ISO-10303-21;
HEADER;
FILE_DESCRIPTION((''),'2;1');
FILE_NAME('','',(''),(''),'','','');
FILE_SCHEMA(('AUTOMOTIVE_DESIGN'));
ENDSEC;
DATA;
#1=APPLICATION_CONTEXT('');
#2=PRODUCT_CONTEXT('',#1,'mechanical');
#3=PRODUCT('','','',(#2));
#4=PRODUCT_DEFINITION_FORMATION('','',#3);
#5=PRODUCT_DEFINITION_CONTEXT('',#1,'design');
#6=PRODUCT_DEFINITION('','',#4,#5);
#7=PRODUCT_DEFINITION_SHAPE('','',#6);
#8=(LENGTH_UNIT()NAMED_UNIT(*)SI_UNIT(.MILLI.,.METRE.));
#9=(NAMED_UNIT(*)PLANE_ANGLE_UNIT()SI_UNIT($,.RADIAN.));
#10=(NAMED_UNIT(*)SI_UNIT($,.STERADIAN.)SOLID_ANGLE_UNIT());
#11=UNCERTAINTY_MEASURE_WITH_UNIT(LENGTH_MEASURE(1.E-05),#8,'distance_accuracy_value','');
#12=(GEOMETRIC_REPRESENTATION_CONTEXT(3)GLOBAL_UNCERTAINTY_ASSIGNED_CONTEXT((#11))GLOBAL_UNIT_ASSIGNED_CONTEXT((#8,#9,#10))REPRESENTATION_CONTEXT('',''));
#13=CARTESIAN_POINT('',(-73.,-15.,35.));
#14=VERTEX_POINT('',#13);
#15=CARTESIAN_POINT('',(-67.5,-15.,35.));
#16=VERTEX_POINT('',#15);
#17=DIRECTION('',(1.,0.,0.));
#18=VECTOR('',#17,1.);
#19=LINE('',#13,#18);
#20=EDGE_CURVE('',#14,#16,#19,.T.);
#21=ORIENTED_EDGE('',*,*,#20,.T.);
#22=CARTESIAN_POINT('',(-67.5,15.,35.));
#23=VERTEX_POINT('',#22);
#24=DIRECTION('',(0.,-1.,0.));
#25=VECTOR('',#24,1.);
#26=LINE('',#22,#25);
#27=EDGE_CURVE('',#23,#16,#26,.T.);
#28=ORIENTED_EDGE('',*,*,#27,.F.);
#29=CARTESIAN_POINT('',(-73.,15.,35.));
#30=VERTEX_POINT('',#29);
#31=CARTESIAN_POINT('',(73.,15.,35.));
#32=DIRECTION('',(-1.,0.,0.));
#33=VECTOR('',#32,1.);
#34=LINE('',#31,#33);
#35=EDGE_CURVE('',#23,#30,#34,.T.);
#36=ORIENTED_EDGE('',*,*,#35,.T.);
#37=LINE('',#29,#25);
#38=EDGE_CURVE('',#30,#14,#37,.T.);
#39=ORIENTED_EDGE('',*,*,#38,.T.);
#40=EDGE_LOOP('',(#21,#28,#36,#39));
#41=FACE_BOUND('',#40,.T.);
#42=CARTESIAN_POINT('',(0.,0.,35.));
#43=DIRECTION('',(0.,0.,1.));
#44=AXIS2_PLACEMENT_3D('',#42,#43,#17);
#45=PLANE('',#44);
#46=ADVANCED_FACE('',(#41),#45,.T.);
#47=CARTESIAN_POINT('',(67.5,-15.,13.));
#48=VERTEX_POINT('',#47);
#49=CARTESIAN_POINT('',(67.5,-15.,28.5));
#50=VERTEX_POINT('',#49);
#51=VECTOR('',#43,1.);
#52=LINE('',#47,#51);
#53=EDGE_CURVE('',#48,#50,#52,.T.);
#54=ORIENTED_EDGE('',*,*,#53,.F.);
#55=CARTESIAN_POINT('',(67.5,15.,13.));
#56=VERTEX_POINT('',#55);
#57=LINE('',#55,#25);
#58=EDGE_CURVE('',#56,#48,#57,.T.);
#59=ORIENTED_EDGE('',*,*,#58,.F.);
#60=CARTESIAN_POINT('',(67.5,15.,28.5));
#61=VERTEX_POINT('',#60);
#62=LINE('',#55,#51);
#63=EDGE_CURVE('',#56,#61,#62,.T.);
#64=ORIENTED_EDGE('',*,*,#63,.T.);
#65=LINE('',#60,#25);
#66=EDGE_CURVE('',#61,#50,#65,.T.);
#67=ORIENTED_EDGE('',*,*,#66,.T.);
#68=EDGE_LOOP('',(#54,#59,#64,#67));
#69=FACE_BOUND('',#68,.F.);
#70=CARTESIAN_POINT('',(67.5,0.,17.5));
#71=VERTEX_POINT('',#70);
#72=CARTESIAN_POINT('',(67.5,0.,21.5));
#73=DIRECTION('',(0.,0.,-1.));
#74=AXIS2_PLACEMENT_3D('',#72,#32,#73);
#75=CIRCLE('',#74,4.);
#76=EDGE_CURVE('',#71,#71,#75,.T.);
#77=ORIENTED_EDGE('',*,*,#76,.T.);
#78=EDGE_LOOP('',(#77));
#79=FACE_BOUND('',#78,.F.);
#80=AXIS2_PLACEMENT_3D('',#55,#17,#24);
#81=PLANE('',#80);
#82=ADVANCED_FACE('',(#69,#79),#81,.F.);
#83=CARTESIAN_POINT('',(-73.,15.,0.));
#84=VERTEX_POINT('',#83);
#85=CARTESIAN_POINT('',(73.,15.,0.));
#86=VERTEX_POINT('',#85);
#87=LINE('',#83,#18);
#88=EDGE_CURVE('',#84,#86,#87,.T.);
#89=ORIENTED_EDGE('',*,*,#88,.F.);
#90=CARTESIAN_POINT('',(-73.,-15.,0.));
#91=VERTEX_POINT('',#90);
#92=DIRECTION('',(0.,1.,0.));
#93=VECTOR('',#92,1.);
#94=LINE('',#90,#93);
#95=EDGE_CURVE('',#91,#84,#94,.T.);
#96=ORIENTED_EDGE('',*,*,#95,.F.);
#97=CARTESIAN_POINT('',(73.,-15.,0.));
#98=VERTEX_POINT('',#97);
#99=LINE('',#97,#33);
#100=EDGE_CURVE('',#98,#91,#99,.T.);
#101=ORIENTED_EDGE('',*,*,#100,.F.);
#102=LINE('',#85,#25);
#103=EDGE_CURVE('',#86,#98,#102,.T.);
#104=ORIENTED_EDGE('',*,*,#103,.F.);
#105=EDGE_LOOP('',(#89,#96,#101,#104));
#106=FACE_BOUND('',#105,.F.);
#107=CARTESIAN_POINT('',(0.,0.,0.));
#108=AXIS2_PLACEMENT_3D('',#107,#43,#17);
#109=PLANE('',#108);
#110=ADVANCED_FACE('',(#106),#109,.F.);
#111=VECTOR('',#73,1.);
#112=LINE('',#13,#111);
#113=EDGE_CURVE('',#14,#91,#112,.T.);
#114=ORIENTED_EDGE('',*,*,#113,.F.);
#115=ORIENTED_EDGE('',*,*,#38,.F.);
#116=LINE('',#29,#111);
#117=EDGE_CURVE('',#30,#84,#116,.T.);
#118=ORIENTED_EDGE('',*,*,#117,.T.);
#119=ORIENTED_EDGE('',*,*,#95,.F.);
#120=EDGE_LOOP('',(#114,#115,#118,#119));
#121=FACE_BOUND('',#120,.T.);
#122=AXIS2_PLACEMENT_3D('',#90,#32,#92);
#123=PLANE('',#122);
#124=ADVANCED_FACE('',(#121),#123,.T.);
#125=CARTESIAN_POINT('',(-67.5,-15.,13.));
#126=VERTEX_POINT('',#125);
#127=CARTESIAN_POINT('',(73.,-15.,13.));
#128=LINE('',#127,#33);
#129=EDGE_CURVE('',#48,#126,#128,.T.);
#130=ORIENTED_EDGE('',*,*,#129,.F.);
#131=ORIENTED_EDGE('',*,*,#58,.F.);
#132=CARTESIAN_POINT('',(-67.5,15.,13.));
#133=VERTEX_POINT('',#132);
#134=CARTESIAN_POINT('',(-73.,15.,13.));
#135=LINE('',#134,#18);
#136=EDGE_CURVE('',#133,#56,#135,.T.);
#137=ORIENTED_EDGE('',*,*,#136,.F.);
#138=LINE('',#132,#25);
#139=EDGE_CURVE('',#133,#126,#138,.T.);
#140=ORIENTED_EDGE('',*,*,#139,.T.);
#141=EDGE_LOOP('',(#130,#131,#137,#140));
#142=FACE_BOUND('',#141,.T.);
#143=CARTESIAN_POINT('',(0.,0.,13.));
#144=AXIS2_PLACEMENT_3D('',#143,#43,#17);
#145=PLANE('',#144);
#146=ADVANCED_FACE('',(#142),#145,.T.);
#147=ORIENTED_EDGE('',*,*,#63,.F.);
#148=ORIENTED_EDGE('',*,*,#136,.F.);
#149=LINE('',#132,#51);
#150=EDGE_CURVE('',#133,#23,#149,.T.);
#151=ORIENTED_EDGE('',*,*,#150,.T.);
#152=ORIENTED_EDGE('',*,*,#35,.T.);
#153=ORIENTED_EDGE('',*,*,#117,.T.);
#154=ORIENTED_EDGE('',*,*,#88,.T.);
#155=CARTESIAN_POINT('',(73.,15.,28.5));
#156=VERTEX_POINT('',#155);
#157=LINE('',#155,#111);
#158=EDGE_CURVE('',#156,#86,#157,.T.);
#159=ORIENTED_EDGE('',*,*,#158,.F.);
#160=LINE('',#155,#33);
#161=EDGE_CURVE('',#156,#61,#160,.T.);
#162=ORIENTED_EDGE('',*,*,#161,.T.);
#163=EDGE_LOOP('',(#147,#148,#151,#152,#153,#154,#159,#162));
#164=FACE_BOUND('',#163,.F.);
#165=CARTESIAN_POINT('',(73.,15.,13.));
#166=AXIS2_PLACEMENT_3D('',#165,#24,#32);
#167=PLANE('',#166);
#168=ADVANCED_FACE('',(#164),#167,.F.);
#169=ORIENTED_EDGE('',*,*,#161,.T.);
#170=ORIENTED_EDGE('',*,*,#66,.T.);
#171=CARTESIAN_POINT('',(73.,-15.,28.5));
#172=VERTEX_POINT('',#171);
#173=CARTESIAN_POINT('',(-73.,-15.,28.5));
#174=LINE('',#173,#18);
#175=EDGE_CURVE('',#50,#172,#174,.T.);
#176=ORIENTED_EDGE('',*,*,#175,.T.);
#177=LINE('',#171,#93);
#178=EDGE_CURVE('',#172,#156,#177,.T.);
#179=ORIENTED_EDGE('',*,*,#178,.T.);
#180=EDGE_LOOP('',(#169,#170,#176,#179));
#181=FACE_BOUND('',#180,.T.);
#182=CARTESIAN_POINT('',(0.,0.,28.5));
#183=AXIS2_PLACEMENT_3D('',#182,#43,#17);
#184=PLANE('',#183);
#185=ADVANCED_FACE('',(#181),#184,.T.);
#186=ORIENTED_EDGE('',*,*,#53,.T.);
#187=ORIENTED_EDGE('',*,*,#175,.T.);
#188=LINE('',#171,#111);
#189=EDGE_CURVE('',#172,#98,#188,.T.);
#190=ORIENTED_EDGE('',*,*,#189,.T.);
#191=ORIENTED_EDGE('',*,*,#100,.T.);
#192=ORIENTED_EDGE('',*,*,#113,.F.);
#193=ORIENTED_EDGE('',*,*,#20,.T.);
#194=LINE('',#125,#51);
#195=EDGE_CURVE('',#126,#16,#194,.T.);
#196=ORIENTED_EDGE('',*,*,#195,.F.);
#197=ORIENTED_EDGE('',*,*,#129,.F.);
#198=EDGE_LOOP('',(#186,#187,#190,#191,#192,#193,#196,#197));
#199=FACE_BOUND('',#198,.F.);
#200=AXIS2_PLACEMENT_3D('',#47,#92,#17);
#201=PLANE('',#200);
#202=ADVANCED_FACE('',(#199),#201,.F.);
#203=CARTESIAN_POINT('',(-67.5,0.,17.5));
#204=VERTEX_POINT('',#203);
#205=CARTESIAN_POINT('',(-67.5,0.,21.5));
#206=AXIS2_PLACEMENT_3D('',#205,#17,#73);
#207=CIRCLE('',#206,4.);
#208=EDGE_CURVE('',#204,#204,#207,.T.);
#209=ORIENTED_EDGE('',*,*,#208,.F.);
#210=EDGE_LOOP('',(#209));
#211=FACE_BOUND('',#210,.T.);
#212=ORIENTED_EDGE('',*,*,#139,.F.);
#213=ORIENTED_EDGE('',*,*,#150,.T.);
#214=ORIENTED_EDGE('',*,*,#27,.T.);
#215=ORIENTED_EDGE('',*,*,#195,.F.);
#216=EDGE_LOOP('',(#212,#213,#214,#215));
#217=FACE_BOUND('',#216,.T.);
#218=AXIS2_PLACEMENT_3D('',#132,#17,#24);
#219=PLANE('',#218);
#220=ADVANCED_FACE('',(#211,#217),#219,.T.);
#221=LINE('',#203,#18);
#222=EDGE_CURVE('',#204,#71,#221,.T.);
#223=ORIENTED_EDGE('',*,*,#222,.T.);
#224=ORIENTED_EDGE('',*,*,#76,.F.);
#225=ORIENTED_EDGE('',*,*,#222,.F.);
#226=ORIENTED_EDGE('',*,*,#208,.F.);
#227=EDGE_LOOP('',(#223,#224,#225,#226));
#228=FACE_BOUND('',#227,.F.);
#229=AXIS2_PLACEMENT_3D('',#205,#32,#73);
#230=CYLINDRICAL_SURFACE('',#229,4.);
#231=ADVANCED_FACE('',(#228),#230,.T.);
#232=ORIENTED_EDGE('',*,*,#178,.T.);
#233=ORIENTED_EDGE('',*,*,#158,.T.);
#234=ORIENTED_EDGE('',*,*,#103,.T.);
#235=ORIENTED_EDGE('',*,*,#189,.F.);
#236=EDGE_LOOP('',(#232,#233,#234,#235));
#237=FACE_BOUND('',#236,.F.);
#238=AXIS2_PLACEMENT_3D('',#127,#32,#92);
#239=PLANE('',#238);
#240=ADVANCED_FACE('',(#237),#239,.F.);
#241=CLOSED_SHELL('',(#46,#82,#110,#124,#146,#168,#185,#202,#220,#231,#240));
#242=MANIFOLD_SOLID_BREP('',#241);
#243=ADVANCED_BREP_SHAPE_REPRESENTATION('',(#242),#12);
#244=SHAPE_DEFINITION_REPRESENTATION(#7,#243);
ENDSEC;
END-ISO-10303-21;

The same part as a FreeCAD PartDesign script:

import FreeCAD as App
import Part
import Sketcher

V = App.Vector

doc = App.newDocument("Part")
body = doc.addObject("PartDesign::Body", "Body")

# Sketch on XY plane
sketch1 = body.newObject("Sketcher::SketchObject", "Sketch")
sketch1.AttachmentSupport = (doc.getObject("XY_Plane"), [""])
sketch1.MapMode = "FlatFace"
sketch1.addGeometry(Part.LineSegment(V(-73, -15, 0), V(73, -15, 0)), False)
sketch1.addGeometry(Part.LineSegment(V(73, -15, 0), V(73, 15, 0)), False)
sketch1.addGeometry(Part.LineSegment(V(73, 15, 0), V(-73, 15, 0)), False)
sketch1.addGeometry(Part.LineSegment(V(-73, 15, 0), V(-73, -15, 0)), False)
sketch1.addConstraint(Sketcher.Constraint("Coincident", 0, 2, 1, 1))
sketch1.addConstraint(Sketcher.Constraint("Coincident", 1, 2, 2, 1))
sketch1.addConstraint(Sketcher.Constraint("Coincident", 2, 2, 3, 1))
sketch1.addConstraint(Sketcher.Constraint("Coincident", 3, 2, 0, 1))
sketch1.addConstraint(Sketcher.Constraint("Horizontal", 0))
sketch1.addConstraint(Sketcher.Constraint("Vertical", 1))
sketch1.addConstraint(Sketcher.Constraint("Horizontal", 2))
sketch1.addConstraint(Sketcher.Constraint("Vertical", 3))
sketch1.addConstraint(Sketcher.Constraint("Symmetric", 0, 2, 2, 2, -1, 1))
sketch1.addConstraint(Sketcher.Constraint("DistanceX", 0, 1, 0, 2, 146.0))
sketch1.addConstraint(Sketcher.Constraint("DistanceY", 1, 1, 1, 2, 30.0))
pad1 = body.newObject("PartDesign::Pad", "Pad")
pad1.Profile = sketch1
pad1.Length = 13

# Sketch on XY plane
sketch2 = body.newObject("Sketcher::SketchObject", "Sketch001")
sketch2.AttachmentSupport = (doc.getObject("XY_Plane"), [""])
sketch2.MapMode = "FlatFace"
sketch2.AttachmentOffset = App.Placement(V(0, 0, 13), App.Rotation())
sketch2.addGeometry(Part.LineSegment(V(-68, 15, 0), V(-73, 15, 0)), False)
sketch2.addGeometry(Part.LineSegment(V(-73, 15, 0), V(-73, -15, 0)), False)
sketch2.addGeometry(Part.LineSegment(V(-73, -15, 0), V(-68, -15, 0)), False)
sketch2.addGeometry(Part.LineSegment(V(-68, -15, 0), V(-68, 15, 0)), False)
sketch2.addConstraint(Sketcher.Constraint("Coincident", 0, 2, 1, 1))
sketch2.addConstraint(Sketcher.Constraint("Coincident", 1, 2, 2, 1))
sketch2.addConstraint(Sketcher.Constraint("Coincident", 2, 2, 3, 1))
sketch2.addConstraint(Sketcher.Constraint("Coincident", 3, 2, 0, 1))
sketch2.addConstraint(Sketcher.Constraint("Horizontal", 0))
sketch2.addConstraint(Sketcher.Constraint("Vertical", 1))
sketch2.addConstraint(Sketcher.Constraint("Horizontal", 2))
sketch2.addConstraint(Sketcher.Constraint("Vertical", 3))
sketch2.addConstraint(Sketcher.Constraint("DistanceX", 0, 2, 0, 1, 5.5))
sketch2.addConstraint(Sketcher.Constraint("DistanceY", 1, 2, 1, 1, 30.0))
sketch2.addConstraint(Sketcher.Constraint("DistanceX", 0, 2, -1, 1, 73.0))
sketch2.addConstraint(Sketcher.Constraint("DistanceY", -1, 1, 0, 2, 15.0))
pad2 = body.newObject("PartDesign::Pad", "Pad001")
pad2.Profile = sketch2
pad2.Length = 22

# Sketch on XY plane
sketch3 = body.newObject("Sketcher::SketchObject", "Sketch002")
sketch3.AttachmentSupport = (doc.getObject("XY_Plane"), [""])
sketch3.MapMode = "FlatFace"
sketch3.AttachmentOffset = App.Placement(V(0, 0, 13), App.Rotation())
sketch3.addGeometry(Part.LineSegment(V(73, 15, 0), V(68, 15, 0)), False)
sketch3.addGeometry(Part.LineSegment(V(68, 15, 0), V(68, -15, 0)), False)
sketch3.addGeometry(Part.LineSegment(V(68, -15, 0), V(73, -15, 0)), False)
sketch3.addGeometry(Part.LineSegment(V(73, -15, 0), V(73, 15, 0)), False)
sketch3.addConstraint(Sketcher.Constraint("Coincident", 0, 2, 1, 1))
sketch3.addConstraint(Sketcher.Constraint("Coincident", 1, 2, 2, 1))
sketch3.addConstraint(Sketcher.Constraint("Coincident", 2, 2, 3, 1))
sketch3.addConstraint(Sketcher.Constraint("Coincident", 3, 2, 0, 1))
sketch3.addConstraint(Sketcher.Constraint("Horizontal", 0))
sketch3.addConstraint(Sketcher.Constraint("Vertical", 1))
sketch3.addConstraint(Sketcher.Constraint("Horizontal", 2))
sketch3.addConstraint(Sketcher.Constraint("Vertical", 3))
sketch3.addConstraint(Sketcher.Constraint("DistanceX", 0, 2, 0, 1, 5.5))
sketch3.addConstraint(Sketcher.Constraint("DistanceY", 1, 2, 1, 1, 30.0))
sketch3.addConstraint(Sketcher.Constraint("DistanceY", -1, 1, 0, 2, 15.0))
sketch3.addConstraint(Sketcher.Constraint("DistanceX", -1, 1, 2, 2, 73.0))
pad3 = body.newObject("PartDesign::Pad", "Pad002")
pad3.Profile = sketch3
pad3.Length = 15.5

# Sketch on YZ plane
sketch4 = body.newObject("Sketcher::SketchObject", "Sketch003")
sketch4.AttachmentSupport = (doc.getObject("YZ_Plane"), [""])
sketch4.MapMode = "FlatFace"
sketch4.AttachmentOffset = App.Placement(V(0, 0, -67.5), App.Rotation())
sketch4.addGeometry(Part.Circle(V(0, 21.5, 0), V(0, 0, 1), 4), False)
sketch4.addConstraint(Sketcher.Constraint("PointOnObject", 0, 3, -2))
sketch4.addConstraint(Sketcher.Constraint("Diameter", 0, 8.0))
sketch4.addConstraint(Sketcher.Constraint("DistanceY", -1, 1, 0, 3, 21.5))
pad4 = body.newObject("PartDesign::Pad", "Pad003")
pad4.Profile = sketch4
pad4.Length = 135

doc.recompute()
